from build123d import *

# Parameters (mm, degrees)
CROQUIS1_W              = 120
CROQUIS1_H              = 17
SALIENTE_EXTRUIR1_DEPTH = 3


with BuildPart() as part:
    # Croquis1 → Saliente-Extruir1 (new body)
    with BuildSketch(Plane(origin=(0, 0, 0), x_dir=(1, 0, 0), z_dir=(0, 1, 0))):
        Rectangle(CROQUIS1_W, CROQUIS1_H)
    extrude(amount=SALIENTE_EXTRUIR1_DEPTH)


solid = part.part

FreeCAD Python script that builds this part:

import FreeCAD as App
import Part
import Sketcher
from FreeCAD import Vector
Q = App.Units.Quantity


def add_polygon(sketch, points):
    """Adds a closed chain of lines whose ends are joined by coincident constraints."""
    first, n = sketch.GeometryCount, len(points)
    for a, b in zip(points, points[1:] + points[:1]):
        sketch.addGeometry(Part.LineSegment(App.Vector(*a, 0), App.Vector(*b, 0)), False)
    for i in range(n):
        sketch.addConstraint(Sketcher.Constraint("Coincident", first + i, 2, first + (i + 1) % n, 1))

doc = App.newDocument("Part")
body = doc.addObject("PartDesign::Body", "Body")

# Sketch on XZ plane
sketch1 = doc.addObject("Sketcher::SketchObject", "Sketch")
body.addObject(sketch1)
sketch1.AttachmentSupport = (doc.XZ_Plane, [""])
sketch1.MapMode = "FlatFace"
add_polygon(sketch1, [(-60, -8.5), (-60, 8.5), (60, 8.5), (60, -8.5)])  # lines 0-3
sketch1.addConstraint(Sketcher.Constraint("Vertical", 0))
sketch1.addConstraint(Sketcher.Constraint("Horizontal", 1))
sketch1.addConstraint(Sketcher.Constraint("Vertical", 2))
sketch1.addConstraint(Sketcher.Constraint("Horizontal", 3))
sketch1.addConstraint(Sketcher.Constraint("Symmetric", 0, 2, 2, 2, -1, 1))
sketch1.addConstraint(Sketcher.Constraint("DistanceX", 1, 1, 1, 2, Q("120 mm")))
sketch1.addConstraint(Sketcher.Constraint("DistanceY", 0, 1, 0, 2, Q("17 mm")))
pad1 = doc.addObject("PartDesign::Pad", "Pad")
body.addObject(pad1)
pad1.Profile = sketch1
pad1.Length = 3
pad1.Reversed = True

doc.recompute()
